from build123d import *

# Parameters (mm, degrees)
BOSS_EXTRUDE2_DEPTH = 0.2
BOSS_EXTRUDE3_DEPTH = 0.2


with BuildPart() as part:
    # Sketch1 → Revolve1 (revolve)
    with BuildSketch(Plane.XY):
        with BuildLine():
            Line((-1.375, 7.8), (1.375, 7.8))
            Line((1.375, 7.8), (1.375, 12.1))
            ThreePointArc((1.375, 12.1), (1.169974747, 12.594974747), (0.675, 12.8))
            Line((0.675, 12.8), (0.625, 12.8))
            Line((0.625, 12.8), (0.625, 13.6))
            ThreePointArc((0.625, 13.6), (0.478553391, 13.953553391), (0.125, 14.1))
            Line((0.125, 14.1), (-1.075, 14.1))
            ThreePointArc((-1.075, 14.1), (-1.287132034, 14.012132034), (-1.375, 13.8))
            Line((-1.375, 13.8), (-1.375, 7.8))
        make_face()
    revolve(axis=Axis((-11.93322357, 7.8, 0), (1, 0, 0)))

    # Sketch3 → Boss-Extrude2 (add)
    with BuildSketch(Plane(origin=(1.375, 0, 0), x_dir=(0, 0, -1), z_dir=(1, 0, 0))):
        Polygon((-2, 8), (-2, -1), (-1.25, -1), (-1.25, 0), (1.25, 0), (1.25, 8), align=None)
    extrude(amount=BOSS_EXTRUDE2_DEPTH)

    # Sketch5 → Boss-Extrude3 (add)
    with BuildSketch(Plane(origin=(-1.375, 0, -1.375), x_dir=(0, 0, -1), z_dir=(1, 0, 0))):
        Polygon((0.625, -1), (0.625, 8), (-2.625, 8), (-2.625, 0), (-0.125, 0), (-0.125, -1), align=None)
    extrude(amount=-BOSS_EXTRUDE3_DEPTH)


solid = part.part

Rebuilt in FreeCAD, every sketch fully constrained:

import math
import FreeCAD as App
import Part
import Sketcher
from FreeCAD import Vector
Q = App.Units.Quantity

doc = App.newDocument("Part")
params = doc.addObject("Spreadsheet::Sheet", "Params")
for row, (alias, value) in enumerate([
    ("sketch1_radius", "0.7 mm"),
    ("sketch1_radius2", "0.5 mm"),
    ("sketch1_radius3", "0.3 mm"),
    ("sketch1_height", "6 mm"),
    ("sketch1_width", "1.2 mm"),
    ("revolution_angle", "360 deg"),
    ("sketch2_width", "9 mm"),
    ("sketch2_width2", "1 mm"),
    ("sketch2_height", "2.5 mm"),
    ("pad1_length", "0.2 mm"),
    ("sketch3_width", "9 mm"),
    ("sketch3_width2", "8 mm"),
    ("sketch3_height", "2.5 mm"),
    ("pad2_length", "0.2 mm"),
], start=1):
    params.set(f"A{row}", alias)
    params.set(f"B{row}", "=" + value)
    params.setAlias(f"B{row}", alias)

body = doc.addObject("PartDesign::Body", "Body")

# Sketch on XY plane
sketch1 = body.newObject("Sketcher::SketchObject", "Sketch")
sketch1.AttachmentSupport = (doc.getObject("XY_Plane"), [""])
sketch1.MapMode = "FlatFace"
sketch1.addGeometry([
    Part.LineSegment(Vector(-1.375, 7.8, 0), Vector(1.375, 7.8, 0)),  # 0
    Part.LineSegment(Vector(1.375, 7.8, 0), Vector(1.375, 12.1, 0)),  # 1
    Part.ArcOfCircle(Part.Circle(Vector(0.675, 12.1, 0), Vector(0, 0, 1), 0.7), math.radians(0), math.radians(90)),  # 2
    Part.LineSegment(Vector(0.675, 12.8, 0), Vector(0.625, 12.8, 0)),  # 3
    Part.LineSegment(Vector(0.625, 12.8, 0), Vector(0.625, 13.6, 0)),  # 4
    Part.ArcOfCircle(Part.Circle(Vector(0.125, 13.6, 0), Vector(0, 0, 1), 0.5), math.radians(0), math.radians(90)),  # 5
    Part.LineSegment(Vector(0.125, 14.1, 0), Vector(-1.075, 14.1, 0)),  # 6
    Part.ArcOfCircle(Part.Circle(Vector(-1.075, 13.8, 0), Vector(0, 0, 1), 0.3), math.radians(90), math.radians(180)),  # 7
    Part.LineSegment(Vector(-1.375, 13.8, 0), Vector(-1.375, 7.8, 0)),  # 8
], False)
sketch1.addGeometry(Part.LineSegment(Vector(-1.375, 7.8, 0), Vector(1.375, 7.8, 0)), True)  # axis
sketch1.addConstraint([
    Sketcher.Constraint("Coincident", 0, 2, 1, 1),
    Sketcher.Constraint("Tangent", 1, 2, 2, 1),
    Sketcher.Constraint("Tangent", 2, 2, 3, 1),
    Sketcher.Constraint("Coincident", 3, 2, 4, 1),
    Sketcher.Constraint("Tangent", 4, 2, 5, 1),
    Sketcher.Constraint("Tangent", 5, 2, 6, 1),
    Sketcher.Constraint("Tangent", 6, 2, 7, 1),
    Sketcher.Constraint("Tangent", 7, 2, 8, 1),
    Sketcher.Constraint("Coincident", 8, 2, 0, 1),
    Sketcher.Constraint("Horizontal", 0),
    Sketcher.Constraint("Vertical", 1),
    Sketcher.Constraint("Horizontal", 3),
    Sketcher.Constraint("Vertical", 4),
    Sketcher.Constraint("Horizontal", 6),
    Sketcher.Constraint("Vertical", 8),
    Sketcher.Constraint("Horizontal", 9),
    Sketcher.Constraint("Coincident", 9, 1, 8, 2),
    Sketcher.Constraint("Vertical", 1, 2, 9, 2),
    Sketcher.Constraint("Radius", 2, Q("0.7 mm")),
    Sketcher.Constraint("Radius", 5, Q("0.5 mm")),
    Sketcher.Constraint("Radius", 7, Q("0.3 mm")),
    Sketcher.Constraint("DistanceY", 8, 2, 8, 1, Q("6 mm")),
    Sketcher.Constraint("DistanceX", 6, 2, 6, 1, Q("1.2 mm")),
    Sketcher.Constraint("DistanceY", 1, 1, 1, 2, Q("4.3 mm")),
    Sketcher.Constraint("DistanceX", 0, 1, 0, 2, Q("2.75 mm")),
    Sketcher.Constraint("DistanceY", -1, 1, 2, 3, Q("12.1 mm")),
    Sketcher.Constraint("DistanceX", -1, 1, 2, 3, Q("0.675 mm")),
])
sketch1.setExpression("Constraints[18]", "Params.sketch1_radius")
sketch1.setExpression("Constraints[19]", "Params.sketch1_radius2")
sketch1.setExpression("Constraints[20]", "Params.sketch1_radius3")
sketch1.setExpression("Constraints[21]", "Params.sketch1_height")
sketch1.setExpression("Constraints[22]", "Params.sketch1_width")
revolution = body.newObject("PartDesign::Revolution", "Revolution")
revolution.Profile = sketch1
revolution.ReferenceAxis = (sketch1, ["Axis0"])
revolution.setExpression("Angle", "Params.revolution_angle")

# Sketch on YZ plane
sketch2 = body.newObject("Sketcher::SketchObject", "Sketch001")
sketch2.AttachmentSupport = (doc.getObject("YZ_Plane"), [""])
sketch2.MapMode = "FlatFace"
sketch2.AttachmentOffset = App.Placement(Vector(0, 0, 1.375), App.Rotation())
sketch2.addGeometry([
    Part.LineSegment(Vector(8, 2, 0), Vector(-1, 2, 0)),  # 0
    Part.LineSegment(Vector(-1, 2, 0), Vector(-1, 1.25, 0)),  # 1
    Part.LineSegment(Vector(-1, 1.25, 0), Vector(0, 1.25, 0)),  # 2
    Part.LineSegment(Vector(0, 1.25, 0), Vector(0, -1.25, 0)),  # 3
    Part.LineSegment(Vector(0, -1.25, 0), Vector(8, -1.25, 0)),  # 4
    Part.LineSegment(Vector(8, -1.25, 0), Vector(8, 2, 0)),  # 5
], False)
sketch2.addConstraint([
    Sketcher.Constraint("Coincident", 0, 2, 1, 1),
    Sketcher.Constraint("Coincident", 1, 2, 2, 1),
    Sketcher.Constraint("Coincident", 2, 2, 3, 1),
    Sketcher.Constraint("Coincident", 3, 2, 4, 1),
    Sketcher.Constraint("Coincident", 4, 2, 5, 1),
    Sketcher.Constraint("Coincident", 5, 2, 0, 1),
    Sketcher.Constraint("Horizontal", 0),
    Sketcher.Constraint("Vertical", 1),
    Sketcher.Constraint("Horizontal", 2),
    Sketcher.Constraint("Vertical", 3),
    Sketcher.Constraint("Horizontal", 4),
    Sketcher.Constraint("Vertical", 5),
    Sketcher.Constraint("Symmetric", 2, 2, 3, 2, -1, 1),
    Sketcher.Constraint("DistanceX", 0, 2, 0, 1, Q("9 mm")),
    Sketcher.Constraint("DistanceX", 2, 1, 2, 2, Q("1 mm")),
    Sketcher.Constraint("DistanceY", 3, 2, 3, 1, Q("2.5 mm")),
    Sketcher.Constraint("DistanceY", -1, 1, 0, 2, Q("2 mm")),
])
sketch2.setExpression("Constraints[13]", "Params.sketch2_width")
sketch2.setExpression("Constraints[14]", "Params.sketch2_width2")
sketch2.setExpression("Constraints[15]", "Params.sketch2_height")
pad1 = body.newObject("PartDesign::Pad", "Pad")
pad1.Profile = sketch2
pad1.setExpression("Length", "Params.pad1_length")

# Sketch on YZ plane
sketch3 = body.newObject("Sketcher::SketchObject", "Sketch002")
sketch3.AttachmentSupport = (doc.getObject("YZ_Plane"), [""])
sketch3.MapMode = "FlatFace"
sketch3.AttachmentOffset = App.Placement(Vector(0, 0, -1.375), App.Rotation())
sketch3.addGeometry([
    Part.LineSegment(Vector(-1, -2, 0), Vector(8, -2, 0)),  # 0
    Part.LineSegment(Vector(8, -2, 0), Vector(8, 1.25, 0)),  # 1
    Part.LineSegment(Vector(8, 1.25, 0), Vector(0, 1.25, 0)),  # 2
    Part.LineSegment(Vector(0, 1.25, 0), Vector(0, -1.25, 0)),  # 3
    Part.LineSegment(Vector(0, -1.25, 0), Vector(-1, -1.25, 0)),  # 4
    Part.LineSegment(Vector(-1, -1.25, 0), Vector(-1, -2, 0)),  # 5
], False)
sketch3.addConstraint([
    Sketcher.Constraint("Coincident", 0, 2, 1, 1),
    Sketcher.Constraint("Coincident", 1, 2, 2, 1),
    Sketcher.Constraint("Coincident", 2, 2, 3, 1),
    Sketcher.Constraint("Coincident", 3, 2, 4, 1),
    Sketcher.Constraint("Coincident", 4, 2, 5, 1),
    Sketcher.Constraint("Coincident", 5, 2, 0, 1),
    Sketcher.Constraint("Horizontal", 0),
    Sketcher.Constraint("Vertical", 1),
    Sketcher.Constraint("Horizontal", 2),
    Sketcher.Constraint("Vertical", 3),
    Sketcher.Constraint("Horizontal", 4),
    Sketcher.Constraint("Vertical", 5),
    Sketcher.Constraint("Symmetric", 2, 2, 3, 2, -1, 1),
    Sketcher.Constraint("DistanceX", 0, 1, 0, 2, Q("9 mm")),
    Sketcher.Constraint("DistanceX", 2, 2, 2, 1, Q("8 mm")),
    Sketcher.Constraint("DistanceY", 3, 2, 3, 1, Q("2.5 mm")),
    Sketcher.Constraint("DistanceY", 0, 2, -1, 1, Q("2 mm")),
])
sketch3.setExpression("Constraints[13]", "Params.sketch3_width")
sketch3.setExpression("Constraints[14]", "Params.sketch3_width2")
sketch3.setExpression("Constraints[15]", "Params.sketch3_height")
pad2 = body.newObject("PartDesign::Pad", "Pad001")
pad2.Profile = sketch3
pad2.setExpression("Length", "Params.pad2_length")
pad2.Reversed = True

doc.recompute()
